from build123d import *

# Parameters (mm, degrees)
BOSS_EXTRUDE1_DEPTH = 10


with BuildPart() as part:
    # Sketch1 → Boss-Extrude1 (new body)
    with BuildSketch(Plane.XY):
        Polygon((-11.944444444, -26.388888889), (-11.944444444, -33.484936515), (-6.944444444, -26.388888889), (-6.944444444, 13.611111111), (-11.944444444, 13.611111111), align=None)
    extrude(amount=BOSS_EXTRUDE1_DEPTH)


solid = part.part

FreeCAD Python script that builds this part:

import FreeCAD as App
import Part
import Sketcher
from FreeCAD import Vector
Q = App.Units.Quantity


def add_polygon(sketch, points):
    """Adds a closed chain of lines whose ends are joined by coincident constraints."""
    first, n = sketch.GeometryCount, len(points)
    for a, b in zip(points, points[1:] + points[:1]):
        sketch.addGeometry(Part.LineSegment(App.Vector(*a, 0), App.Vector(*b, 0)), False)
    for i in range(n):
        sketch.addConstraint(Sketcher.Constraint("Coincident", first + i, 2, first + (i + 1) % n, 1))

doc = App.newDocument("Part")
params = doc.addObject("Spreadsheet::Sheet", "Params")
for row, (alias, value) in enumerate([
    ("sketch1_width", "5 mm"),
    ("sketch1_height", "40 mm"),
    ("pad1_length", "10 mm"),
], start=1):
    params.set(f"A{row}", alias)
    params.set(f"B{row}", "=" + value)
    params.setAlias(f"B{row}", alias)

body = doc.addObject("PartDesign::Body", "Body")

sketch1 = body.newObject("Sketcher::SketchObject", "Sketch")
sketch1.AttachmentSupport = (doc.getObject("XY_Plane"), [""])
sketch1.MapMode = "FlatFace"
add_polygon(sketch1, [(-12, -33), (-7, -26), (-7, 14), (-12, 14)])
sketch1.addConstraint(Sketcher.Constraint("Vertical", 1))
sketch1.addConstraint(Sketcher.Constraint("Horizontal", 2))
sketch1.addConstraint(Sketcher.Constraint("Vertical", 3))
sketch1.addConstraint(Sketcher.Constraint("DistanceX", 2, 2, 2, 1, Q("5 mm")))
sketch1.addConstraint(Sketcher.Constraint("DistanceY", 1, 1, 1, 2, Q("40 mm")))
sketch1.addConstraint(Sketcher.Constraint("Distance", 0, Q("8.680662 mm")))
sketch1.addConstraint(Sketcher.Constraint("DistanceY", 0, 2, -1, 1, Q("26.388889 mm")))
sketch1.addConstraint(Sketcher.Constraint("DistanceX", 0, 2, -1, 1, Q("6.944444 mm")))
sketch1.setExpression("Constraints[7]", "Params.sketch1_width")
sketch1.setExpression("Constraints[8]", "Params.sketch1_height")
pad1 = body.newObject("PartDesign::Pad", "Pad")
pad1.Profile = sketch1
pad1.setExpression("Length", "Params.pad1_length")

doc.recompute()
